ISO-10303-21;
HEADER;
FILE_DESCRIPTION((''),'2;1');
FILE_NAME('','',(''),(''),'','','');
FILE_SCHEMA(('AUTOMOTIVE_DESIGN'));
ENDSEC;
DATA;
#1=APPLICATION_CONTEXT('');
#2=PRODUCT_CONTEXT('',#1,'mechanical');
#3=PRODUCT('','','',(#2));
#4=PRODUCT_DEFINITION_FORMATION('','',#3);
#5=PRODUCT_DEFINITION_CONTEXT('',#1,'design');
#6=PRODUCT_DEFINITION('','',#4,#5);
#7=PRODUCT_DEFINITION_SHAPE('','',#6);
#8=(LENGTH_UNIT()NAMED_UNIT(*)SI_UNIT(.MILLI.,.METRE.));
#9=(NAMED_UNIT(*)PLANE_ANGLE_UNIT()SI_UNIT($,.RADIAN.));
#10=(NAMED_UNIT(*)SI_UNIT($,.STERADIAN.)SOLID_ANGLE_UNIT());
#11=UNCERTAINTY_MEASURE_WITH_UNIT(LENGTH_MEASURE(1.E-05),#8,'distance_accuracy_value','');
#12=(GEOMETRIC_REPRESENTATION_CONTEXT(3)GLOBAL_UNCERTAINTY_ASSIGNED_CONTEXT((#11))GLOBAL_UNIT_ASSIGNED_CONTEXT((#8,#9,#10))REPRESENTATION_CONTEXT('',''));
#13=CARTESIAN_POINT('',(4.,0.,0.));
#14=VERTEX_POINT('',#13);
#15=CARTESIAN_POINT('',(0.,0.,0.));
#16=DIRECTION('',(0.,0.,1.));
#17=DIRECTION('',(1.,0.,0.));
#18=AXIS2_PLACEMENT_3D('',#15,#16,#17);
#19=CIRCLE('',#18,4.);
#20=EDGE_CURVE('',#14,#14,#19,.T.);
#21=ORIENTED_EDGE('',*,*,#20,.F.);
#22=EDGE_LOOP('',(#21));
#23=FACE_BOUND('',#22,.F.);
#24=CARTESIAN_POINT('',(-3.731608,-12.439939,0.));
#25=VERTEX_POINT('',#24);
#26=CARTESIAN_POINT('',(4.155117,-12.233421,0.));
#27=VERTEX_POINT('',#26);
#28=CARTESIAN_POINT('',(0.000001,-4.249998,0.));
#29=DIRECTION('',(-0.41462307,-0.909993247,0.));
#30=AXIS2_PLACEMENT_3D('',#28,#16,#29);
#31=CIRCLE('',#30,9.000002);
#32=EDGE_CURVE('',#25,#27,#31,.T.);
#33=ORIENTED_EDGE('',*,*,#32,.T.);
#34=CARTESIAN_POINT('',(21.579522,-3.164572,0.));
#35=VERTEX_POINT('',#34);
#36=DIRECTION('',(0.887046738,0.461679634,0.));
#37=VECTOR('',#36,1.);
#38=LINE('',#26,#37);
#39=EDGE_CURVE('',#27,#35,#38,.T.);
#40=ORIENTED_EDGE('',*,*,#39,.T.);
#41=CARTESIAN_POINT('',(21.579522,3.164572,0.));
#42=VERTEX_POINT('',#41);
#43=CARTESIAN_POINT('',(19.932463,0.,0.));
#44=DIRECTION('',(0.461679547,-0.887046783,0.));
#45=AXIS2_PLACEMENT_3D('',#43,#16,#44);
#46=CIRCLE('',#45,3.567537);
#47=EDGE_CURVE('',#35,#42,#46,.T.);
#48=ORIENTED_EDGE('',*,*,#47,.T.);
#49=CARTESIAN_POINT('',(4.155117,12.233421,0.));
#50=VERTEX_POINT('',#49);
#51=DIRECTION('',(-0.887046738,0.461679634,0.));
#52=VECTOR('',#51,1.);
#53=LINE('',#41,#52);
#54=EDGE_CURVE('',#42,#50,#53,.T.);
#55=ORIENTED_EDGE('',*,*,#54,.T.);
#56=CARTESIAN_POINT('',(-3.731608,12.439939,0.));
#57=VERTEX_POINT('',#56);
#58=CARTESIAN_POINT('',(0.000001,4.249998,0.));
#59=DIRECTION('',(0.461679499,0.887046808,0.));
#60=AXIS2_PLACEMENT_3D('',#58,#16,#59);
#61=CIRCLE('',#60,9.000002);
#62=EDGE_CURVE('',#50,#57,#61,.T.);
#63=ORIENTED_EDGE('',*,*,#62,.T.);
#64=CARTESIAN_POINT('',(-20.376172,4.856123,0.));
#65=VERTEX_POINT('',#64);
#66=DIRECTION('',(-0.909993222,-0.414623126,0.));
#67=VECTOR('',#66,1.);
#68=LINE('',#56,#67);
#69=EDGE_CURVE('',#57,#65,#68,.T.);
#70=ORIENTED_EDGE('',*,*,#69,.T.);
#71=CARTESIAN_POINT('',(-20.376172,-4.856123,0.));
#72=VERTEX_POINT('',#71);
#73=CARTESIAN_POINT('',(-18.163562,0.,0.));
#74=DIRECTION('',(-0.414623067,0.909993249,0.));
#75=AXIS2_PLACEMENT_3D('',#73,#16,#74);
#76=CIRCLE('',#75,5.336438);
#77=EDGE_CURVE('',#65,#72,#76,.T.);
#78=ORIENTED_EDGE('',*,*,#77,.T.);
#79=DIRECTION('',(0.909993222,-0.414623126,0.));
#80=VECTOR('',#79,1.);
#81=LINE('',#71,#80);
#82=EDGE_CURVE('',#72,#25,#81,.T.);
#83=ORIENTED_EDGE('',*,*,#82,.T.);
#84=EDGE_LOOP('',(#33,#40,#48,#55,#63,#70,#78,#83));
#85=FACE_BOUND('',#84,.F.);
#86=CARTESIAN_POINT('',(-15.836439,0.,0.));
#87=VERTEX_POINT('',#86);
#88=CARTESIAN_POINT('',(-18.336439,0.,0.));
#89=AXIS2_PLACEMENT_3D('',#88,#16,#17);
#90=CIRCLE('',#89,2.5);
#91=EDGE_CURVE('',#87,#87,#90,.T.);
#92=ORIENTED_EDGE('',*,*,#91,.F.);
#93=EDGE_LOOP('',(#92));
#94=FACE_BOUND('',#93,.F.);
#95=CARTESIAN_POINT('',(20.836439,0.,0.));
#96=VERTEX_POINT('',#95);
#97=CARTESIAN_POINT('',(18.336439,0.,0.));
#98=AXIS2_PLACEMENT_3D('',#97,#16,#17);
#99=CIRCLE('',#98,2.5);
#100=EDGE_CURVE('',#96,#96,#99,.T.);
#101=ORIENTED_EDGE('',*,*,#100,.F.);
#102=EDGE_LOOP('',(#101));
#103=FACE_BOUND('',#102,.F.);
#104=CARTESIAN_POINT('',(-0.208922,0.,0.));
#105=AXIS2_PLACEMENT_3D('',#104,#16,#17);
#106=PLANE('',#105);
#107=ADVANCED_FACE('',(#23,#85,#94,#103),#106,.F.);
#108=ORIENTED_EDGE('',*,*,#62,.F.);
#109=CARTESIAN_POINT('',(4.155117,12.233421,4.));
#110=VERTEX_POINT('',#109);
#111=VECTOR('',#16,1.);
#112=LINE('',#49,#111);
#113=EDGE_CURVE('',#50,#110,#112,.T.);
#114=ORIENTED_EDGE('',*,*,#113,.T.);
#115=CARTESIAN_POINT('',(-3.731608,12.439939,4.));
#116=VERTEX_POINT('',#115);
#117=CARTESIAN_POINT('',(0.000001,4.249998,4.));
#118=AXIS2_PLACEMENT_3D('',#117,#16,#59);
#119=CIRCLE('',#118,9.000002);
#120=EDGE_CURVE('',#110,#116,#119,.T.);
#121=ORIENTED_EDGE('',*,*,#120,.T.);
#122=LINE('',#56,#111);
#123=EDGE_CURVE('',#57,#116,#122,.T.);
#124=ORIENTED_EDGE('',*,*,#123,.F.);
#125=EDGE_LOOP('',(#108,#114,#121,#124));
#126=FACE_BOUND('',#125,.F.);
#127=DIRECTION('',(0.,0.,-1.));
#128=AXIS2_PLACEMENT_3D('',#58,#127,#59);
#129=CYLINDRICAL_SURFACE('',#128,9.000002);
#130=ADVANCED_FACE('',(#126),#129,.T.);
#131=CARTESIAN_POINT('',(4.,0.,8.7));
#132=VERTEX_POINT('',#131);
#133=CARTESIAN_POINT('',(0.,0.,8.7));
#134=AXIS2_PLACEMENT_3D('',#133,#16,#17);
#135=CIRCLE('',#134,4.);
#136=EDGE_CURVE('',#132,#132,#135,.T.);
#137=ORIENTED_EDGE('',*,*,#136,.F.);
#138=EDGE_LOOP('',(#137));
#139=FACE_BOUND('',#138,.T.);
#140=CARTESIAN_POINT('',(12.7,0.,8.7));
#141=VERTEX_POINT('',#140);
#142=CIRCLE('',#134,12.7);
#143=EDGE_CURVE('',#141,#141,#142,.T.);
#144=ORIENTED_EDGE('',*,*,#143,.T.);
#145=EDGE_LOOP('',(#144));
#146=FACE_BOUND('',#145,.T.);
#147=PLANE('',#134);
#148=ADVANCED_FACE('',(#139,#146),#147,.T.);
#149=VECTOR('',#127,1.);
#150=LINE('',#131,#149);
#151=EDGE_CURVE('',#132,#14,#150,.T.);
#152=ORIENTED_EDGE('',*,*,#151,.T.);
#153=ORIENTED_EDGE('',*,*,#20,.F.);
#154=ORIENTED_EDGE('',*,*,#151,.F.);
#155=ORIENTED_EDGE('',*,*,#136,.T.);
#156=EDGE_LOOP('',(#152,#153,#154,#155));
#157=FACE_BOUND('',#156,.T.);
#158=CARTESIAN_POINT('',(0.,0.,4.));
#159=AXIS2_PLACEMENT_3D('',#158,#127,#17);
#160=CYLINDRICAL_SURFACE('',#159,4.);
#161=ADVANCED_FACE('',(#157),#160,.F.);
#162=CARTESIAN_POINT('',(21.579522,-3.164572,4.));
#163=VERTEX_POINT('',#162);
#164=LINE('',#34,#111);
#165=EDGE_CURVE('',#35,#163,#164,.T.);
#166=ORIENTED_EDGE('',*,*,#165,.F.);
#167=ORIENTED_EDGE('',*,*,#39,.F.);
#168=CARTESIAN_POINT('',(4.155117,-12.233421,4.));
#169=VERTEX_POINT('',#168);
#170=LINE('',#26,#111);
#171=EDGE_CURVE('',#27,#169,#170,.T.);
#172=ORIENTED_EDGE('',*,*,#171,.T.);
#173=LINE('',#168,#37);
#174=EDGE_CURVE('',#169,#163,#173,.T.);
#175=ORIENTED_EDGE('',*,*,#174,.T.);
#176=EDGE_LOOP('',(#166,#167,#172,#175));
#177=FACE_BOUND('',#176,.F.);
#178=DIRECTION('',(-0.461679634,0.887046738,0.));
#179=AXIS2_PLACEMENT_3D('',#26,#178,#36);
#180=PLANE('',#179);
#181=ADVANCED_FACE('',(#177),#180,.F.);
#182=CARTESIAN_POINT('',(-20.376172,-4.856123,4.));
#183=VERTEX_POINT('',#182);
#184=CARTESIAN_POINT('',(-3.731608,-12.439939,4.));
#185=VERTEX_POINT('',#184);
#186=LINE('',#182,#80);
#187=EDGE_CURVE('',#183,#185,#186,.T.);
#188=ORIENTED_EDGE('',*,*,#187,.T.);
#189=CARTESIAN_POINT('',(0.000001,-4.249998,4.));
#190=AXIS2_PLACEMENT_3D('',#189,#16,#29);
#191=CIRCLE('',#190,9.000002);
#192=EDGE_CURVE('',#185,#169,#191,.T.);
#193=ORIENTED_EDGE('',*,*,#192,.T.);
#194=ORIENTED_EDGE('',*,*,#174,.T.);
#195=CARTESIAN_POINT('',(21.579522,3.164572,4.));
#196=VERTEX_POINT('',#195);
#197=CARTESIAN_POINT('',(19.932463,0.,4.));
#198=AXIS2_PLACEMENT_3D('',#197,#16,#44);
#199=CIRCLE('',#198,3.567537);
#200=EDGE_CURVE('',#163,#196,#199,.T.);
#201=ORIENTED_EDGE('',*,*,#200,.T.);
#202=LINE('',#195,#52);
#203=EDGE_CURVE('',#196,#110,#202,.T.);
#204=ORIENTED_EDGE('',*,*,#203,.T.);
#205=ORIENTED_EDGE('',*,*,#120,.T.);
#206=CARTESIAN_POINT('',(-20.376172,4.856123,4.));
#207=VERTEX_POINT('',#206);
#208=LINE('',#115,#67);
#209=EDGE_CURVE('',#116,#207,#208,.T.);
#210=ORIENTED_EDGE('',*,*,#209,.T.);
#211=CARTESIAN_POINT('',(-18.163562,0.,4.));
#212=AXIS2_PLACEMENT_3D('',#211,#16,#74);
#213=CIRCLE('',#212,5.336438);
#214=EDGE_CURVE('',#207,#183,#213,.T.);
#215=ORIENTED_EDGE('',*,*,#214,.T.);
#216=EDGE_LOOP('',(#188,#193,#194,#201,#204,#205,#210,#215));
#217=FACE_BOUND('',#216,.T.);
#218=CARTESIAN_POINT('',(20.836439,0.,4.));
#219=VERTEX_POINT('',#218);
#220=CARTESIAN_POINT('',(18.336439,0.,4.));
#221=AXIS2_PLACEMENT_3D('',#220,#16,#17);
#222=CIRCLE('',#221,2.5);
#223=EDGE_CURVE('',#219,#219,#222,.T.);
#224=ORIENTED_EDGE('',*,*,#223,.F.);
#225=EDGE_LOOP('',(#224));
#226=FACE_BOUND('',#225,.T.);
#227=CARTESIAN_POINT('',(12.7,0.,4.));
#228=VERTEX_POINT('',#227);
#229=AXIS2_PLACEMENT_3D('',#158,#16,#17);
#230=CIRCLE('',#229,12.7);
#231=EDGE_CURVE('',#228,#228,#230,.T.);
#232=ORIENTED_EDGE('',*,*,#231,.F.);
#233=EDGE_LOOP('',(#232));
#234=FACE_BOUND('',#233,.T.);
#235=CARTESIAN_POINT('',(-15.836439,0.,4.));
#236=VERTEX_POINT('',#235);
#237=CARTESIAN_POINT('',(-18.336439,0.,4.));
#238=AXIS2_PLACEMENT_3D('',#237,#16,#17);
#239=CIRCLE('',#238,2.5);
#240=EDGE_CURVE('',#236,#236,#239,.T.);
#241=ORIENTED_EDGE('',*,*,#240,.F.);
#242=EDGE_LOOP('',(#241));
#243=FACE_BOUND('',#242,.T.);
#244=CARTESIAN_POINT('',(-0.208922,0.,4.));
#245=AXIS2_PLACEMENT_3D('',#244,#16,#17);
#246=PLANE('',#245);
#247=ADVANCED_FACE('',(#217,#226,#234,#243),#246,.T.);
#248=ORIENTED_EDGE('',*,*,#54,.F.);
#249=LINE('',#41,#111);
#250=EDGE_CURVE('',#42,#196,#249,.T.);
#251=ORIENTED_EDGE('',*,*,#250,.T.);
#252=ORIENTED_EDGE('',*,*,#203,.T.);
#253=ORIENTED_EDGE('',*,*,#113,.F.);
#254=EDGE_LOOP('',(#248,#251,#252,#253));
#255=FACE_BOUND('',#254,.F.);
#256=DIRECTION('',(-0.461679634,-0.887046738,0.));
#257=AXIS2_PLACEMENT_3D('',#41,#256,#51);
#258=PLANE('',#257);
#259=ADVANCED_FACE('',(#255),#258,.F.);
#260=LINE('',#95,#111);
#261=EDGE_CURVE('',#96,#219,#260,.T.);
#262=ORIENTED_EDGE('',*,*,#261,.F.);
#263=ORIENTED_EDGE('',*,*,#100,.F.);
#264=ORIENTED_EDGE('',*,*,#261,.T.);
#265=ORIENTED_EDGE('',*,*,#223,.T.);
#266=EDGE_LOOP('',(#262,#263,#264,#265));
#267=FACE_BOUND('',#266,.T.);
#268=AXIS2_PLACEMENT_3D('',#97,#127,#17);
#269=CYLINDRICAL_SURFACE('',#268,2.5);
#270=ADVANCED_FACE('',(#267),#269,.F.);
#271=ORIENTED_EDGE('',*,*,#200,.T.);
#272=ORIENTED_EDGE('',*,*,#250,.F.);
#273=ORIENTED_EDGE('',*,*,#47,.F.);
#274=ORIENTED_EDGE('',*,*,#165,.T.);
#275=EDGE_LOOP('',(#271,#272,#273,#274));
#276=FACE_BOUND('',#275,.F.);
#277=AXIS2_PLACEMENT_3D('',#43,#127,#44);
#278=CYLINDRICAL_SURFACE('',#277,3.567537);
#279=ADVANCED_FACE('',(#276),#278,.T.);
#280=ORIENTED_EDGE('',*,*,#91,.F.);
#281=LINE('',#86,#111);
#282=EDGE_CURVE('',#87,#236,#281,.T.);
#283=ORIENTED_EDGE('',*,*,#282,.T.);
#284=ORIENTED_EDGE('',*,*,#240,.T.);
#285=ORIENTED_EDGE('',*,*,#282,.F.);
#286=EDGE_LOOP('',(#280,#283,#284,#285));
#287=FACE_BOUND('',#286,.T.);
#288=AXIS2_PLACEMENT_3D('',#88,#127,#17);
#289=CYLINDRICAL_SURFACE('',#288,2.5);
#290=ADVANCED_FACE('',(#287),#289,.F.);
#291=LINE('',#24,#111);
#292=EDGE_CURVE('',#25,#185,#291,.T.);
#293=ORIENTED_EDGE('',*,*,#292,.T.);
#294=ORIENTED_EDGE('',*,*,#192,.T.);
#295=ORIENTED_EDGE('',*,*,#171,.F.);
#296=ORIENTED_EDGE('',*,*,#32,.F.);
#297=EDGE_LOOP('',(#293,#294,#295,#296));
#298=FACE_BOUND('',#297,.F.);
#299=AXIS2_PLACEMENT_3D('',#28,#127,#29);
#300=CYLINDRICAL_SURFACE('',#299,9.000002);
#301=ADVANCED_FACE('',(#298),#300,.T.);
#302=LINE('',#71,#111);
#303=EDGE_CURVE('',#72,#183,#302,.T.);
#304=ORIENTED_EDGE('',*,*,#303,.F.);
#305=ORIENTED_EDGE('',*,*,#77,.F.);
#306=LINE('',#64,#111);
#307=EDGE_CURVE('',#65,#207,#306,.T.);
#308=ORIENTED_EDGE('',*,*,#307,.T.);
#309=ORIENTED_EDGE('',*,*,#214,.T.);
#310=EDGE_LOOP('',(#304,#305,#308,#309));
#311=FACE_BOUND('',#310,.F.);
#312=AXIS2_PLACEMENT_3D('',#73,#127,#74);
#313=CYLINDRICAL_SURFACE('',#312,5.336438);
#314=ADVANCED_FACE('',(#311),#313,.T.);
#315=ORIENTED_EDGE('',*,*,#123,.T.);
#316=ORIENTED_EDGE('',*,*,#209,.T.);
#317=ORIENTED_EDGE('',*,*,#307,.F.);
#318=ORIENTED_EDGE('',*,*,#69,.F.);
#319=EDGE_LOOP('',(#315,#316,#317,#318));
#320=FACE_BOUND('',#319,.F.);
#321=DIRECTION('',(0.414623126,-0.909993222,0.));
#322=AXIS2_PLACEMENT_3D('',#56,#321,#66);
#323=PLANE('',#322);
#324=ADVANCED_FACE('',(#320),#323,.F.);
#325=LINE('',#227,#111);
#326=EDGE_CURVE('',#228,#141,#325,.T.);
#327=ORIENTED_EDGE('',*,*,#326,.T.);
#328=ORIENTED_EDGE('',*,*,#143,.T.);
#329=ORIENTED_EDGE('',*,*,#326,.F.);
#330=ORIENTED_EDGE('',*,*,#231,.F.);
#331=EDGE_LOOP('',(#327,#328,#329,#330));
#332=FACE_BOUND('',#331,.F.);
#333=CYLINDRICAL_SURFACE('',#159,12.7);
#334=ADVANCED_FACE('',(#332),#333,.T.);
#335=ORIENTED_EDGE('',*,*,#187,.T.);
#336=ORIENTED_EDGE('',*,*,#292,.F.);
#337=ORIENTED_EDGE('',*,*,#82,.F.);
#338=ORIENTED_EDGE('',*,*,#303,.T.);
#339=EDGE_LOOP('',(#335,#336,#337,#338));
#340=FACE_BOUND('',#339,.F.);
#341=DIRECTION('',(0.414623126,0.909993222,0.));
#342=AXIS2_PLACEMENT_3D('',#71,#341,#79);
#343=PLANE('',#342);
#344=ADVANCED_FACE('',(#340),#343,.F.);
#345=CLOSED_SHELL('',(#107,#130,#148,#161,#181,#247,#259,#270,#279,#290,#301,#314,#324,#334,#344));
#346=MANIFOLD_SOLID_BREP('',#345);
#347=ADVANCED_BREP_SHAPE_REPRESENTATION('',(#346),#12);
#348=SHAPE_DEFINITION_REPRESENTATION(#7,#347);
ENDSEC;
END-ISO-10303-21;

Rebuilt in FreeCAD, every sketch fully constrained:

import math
import FreeCAD as App
import Part
import Sketcher
from FreeCAD import Vector

doc = App.newDocument("Part")
params = doc.addObject("Spreadsheet::Sheet", "Params")
for row, (alias, value) in enumerate([
    ("sketch1_diameter", "5 mm"),
    ("sketch1_diameter2", "8 mm"),
    ("sketch1_diameter3", "5 mm"),
    ("pad1_length", "4 mm"),
    ("sketch2_diameter", "8 mm"),
    ("sketch2_diameter2", "25.4 mm"),
    ("pad2_length", "4.7 mm"),
], start=1):
    params.set(f"A{row}", alias)
    params.set(f"B{row}", "=" + value)
    params.setAlias(f"B{row}", alias)

body = doc.addObject("PartDesign::Body", "Body")

sketch1 = doc.addObject("Sketcher::SketchObject", "Sketch")
body.addObject(sketch1)
sketch1.AttachmentSupport = (doc.XY_Plane, [""])
sketch1.MapMode = "FlatFace"
sketch1.addGeometry(Part.LineSegment(Vector(-20.376172, -4.856123, 0), Vector(-3.731608, -12.439939, 0)), False)
sketch1.addGeometry(Part.ArcOfCircle(Part.Circle(Vector(0.000001, -4.249998, 0), Vector(0, 0, 1), 9.000002), math.radians(-114.495582), math.radians(-62.504464)), False)
sketch1.addGeometry(Part.LineSegment(Vector(4.155117, -12.233421, 0), Vector(21.579522, -3.164572, 0)), False)
sketch1.addGeometry(Part.ArcOfCircle(Part.Circle(Vector(19.932463, 0, 0), Vector(0, 0, 1), 3.567537), math.radians(-62.504461), math.radians(62.504461)), False)
sketch1.addGeometry(Part.LineSegment(Vector(21.579522, 3.164572, 0), Vector(4.155117, 12.233421, 0)), False)
sketch1.addGeometry(Part.ArcOfCircle(Part.Circle(Vector(0.000001, 4.249998, 0), Vector(0, 0, 1), 9.000002), math.radians(62.504464), math.radians(114.495582)), False)
sketch1.addGeometry(Part.LineSegment(Vector(-3.731608, 12.439939, 0), Vector(-20.376172, 4.856123, 0)), False)
sketch1.addGeometry(Part.ArcOfCircle(Part.Circle(Vector(-18.163562, 0, 0), Vector(0, 0, 1), 5.336438), math.radians(114.495581), math.radians(245.504419)), False)
sketch1.addGeometry(Part.Circle(Vector(-18.336439, 0, 0), Vector(0, 0, 1), 2.5), False)
sketch1.addGeometry(Part.Circle(Vector(0, 0, 0), Vector(0, 0, 1), 4), False)
sketch1.addGeometry(Part.Circle(Vector(18.336439, 0, 0), Vector(0, 0, 1), 2.5), False)
sketch1.addConstraint(Sketcher.Constraint("Coincident", 0, 2, 1, 1))
sketch1.addConstraint(Sketcher.Constraint("Coincident", 1, 2, 2, 1))
sketch1.addConstraint(Sketcher.Constraint("Coincident", 2, 2, 3, 1))
sketch1.addConstraint(Sketcher.Constraint("Coincident", 3, 2, 4, 1))
sketch1.addConstraint(Sketcher.Constraint("Coincident", 4, 2, 5, 1))
sketch1.addConstraint(Sketcher.Constraint("Coincident", 5, 2, 6, 1))
sketch1.addConstraint(Sketcher.Constraint("Coincident", 6, 2, 7, 1))
sketch1.addConstraint(Sketcher.Constraint("Coincident", 7, 2, 0, 1))
sketch1.addConstraint(Sketcher.Constraint("Coincident", 9, 3, -1, 1))
sketch1.addConstraint(Sketcher.Constraint("PointOnObject", 1, 3, -2))
sketch1.addConstraint(Sketcher.Constraint("PointOnObject", 3, 3, -1))
sketch1.addConstraint(Sketcher.Constraint("PointOnObject", 5, 3, -2))
sketch1.addConstraint(Sketcher.Constraint("PointOnObject", 7, 3, -1))
sketch1.addConstraint(Sketcher.Constraint("PointOnObject", 8, 3, -1))
sketch1.addConstraint(Sketcher.Constraint("PointOnObject", 10, 3, -1))
sketch1.addConstraint(Sketcher.Constraint("Diameter", 8, 5.0))
sketch1.addConstraint(Sketcher.Constraint("Diameter", 9, 8.0))
sketch1.addConstraint(Sketcher.Constraint("Diameter", 10, 5.0))
sketch1.addConstraint(Sketcher.Constraint("DistanceX", 7, 3, 10, 3, 36.500001))
sketch1.addConstraint(Sketcher.Constraint("Radius", 7, 5.336438))
sketch1.addConstraint(Sketcher.Constraint("Radius", 1, 9.000002))
sketch1.addConstraint(Sketcher.Constraint("Radius", 3, 3.567537))
sketch1.addConstraint(Sketcher.Constraint("Radius", 5, 9.000002))
sketch1.addConstraint(Sketcher.Constraint("DistanceX", 7, 3, -1, 1, 18.163562))
sketch1.addConstraint(Sketcher.Constraint("DistanceX", 8, 3, -1, 1, 18.336439))
sketch1.addConstraint(Sketcher.Constraint("DistanceX", 0, 2, -1, 1, 3.731608))
sketch1.addConstraint(Sketcher.Constraint("DistanceY", 0, 2, -1, 1, 12.439939))
sketch1.addConstraint(Sketcher.Constraint("DistanceY", 1, 2, -1, 1, 12.233421))
sketch1.addConstraint(Sketcher.Constraint("DistanceY", -1, 1, 4, 2, 12.233421))
sketch1.addConstraint(Sketcher.Constraint("DistanceX", 5, 2, -1, 1, 3.731608))
sketch1.addConstraint(Sketcher.Constraint("DistanceY", -1, 1, 5, 2, 12.439939))
sketch1.addConstraint(Sketcher.Constraint("DistanceX", 7, 2, -1, 1, 20.376172))
sketch1.addConstraint(Sketcher.Constraint("DistanceX", 3, 3, 2, 2, 1.647059))
sketch1.addConstraint(Sketcher.Constraint("DistanceX", 1, 3, 2, 2, 21.579521))
sketch1.addConstraint(Sketcher.Constraint("DistanceX", 3, 3, 3, 2, 1.647059))
sketch1.addConstraint(Sketcher.Constraint("DistanceX", 6, 2, 7, 3, 2.21261))
sketch1.setExpression("Constraints[15]", "Params.sketch1_diameter")
sketch1.setExpression("Constraints[16]", "Params.sketch1_diameter2")
sketch1.setExpression("Constraints[17]", "Params.sketch1_diameter3")
pad1 = doc.addObject("PartDesign::Pad", "Pad")
body.addObject(pad1)
pad1.Profile = sketch1
pad1.setExpression("Length", "Params.pad1_length")

sketch2 = doc.addObject("Sketcher::SketchObject", "Sketch001")
body.addObject(sketch2)
sketch2.AttachmentSupport = (doc.XY_Plane, [""])
sketch2.MapMode = "FlatFace"
sketch2.AttachmentOffset = App.Placement(Vector(0, 0, 4), App.Rotation())
sketch2.addGeometry(Part.Circle(Vector(0, 0, 0), Vector(0, 0, 1), 12.7), False)
sketch2.addGeometry(Part.Circle(Vector(0, 0, 0), Vector(0, 0, 1), 4), False)
sketch2.addConstraint(Sketcher.Constraint("Coincident", 0, 3, -1, 1))
sketch2.addConstraint(Sketcher.Constraint("Coincident", 1, 3, -1, 1))
sketch2.addConstraint(Sketcher.Constraint("Diameter", 1, 8.0))
sketch2.addConstraint(Sketcher.Constraint("Diameter", 0, 25.4))
sketch2.setExpression("Constraints[2]", "Params.sketch2_diameter")
sketch2.setExpression("Constraints[3]", "Params.sketch2_diameter2")
pad2 = doc.addObject("PartDesign::Pad", "Pad001")
body.addObject(pad2)
pad2.Profile = sketch2
pad2.setExpression("Length", "Params.pad2_length")

doc.recompute()
